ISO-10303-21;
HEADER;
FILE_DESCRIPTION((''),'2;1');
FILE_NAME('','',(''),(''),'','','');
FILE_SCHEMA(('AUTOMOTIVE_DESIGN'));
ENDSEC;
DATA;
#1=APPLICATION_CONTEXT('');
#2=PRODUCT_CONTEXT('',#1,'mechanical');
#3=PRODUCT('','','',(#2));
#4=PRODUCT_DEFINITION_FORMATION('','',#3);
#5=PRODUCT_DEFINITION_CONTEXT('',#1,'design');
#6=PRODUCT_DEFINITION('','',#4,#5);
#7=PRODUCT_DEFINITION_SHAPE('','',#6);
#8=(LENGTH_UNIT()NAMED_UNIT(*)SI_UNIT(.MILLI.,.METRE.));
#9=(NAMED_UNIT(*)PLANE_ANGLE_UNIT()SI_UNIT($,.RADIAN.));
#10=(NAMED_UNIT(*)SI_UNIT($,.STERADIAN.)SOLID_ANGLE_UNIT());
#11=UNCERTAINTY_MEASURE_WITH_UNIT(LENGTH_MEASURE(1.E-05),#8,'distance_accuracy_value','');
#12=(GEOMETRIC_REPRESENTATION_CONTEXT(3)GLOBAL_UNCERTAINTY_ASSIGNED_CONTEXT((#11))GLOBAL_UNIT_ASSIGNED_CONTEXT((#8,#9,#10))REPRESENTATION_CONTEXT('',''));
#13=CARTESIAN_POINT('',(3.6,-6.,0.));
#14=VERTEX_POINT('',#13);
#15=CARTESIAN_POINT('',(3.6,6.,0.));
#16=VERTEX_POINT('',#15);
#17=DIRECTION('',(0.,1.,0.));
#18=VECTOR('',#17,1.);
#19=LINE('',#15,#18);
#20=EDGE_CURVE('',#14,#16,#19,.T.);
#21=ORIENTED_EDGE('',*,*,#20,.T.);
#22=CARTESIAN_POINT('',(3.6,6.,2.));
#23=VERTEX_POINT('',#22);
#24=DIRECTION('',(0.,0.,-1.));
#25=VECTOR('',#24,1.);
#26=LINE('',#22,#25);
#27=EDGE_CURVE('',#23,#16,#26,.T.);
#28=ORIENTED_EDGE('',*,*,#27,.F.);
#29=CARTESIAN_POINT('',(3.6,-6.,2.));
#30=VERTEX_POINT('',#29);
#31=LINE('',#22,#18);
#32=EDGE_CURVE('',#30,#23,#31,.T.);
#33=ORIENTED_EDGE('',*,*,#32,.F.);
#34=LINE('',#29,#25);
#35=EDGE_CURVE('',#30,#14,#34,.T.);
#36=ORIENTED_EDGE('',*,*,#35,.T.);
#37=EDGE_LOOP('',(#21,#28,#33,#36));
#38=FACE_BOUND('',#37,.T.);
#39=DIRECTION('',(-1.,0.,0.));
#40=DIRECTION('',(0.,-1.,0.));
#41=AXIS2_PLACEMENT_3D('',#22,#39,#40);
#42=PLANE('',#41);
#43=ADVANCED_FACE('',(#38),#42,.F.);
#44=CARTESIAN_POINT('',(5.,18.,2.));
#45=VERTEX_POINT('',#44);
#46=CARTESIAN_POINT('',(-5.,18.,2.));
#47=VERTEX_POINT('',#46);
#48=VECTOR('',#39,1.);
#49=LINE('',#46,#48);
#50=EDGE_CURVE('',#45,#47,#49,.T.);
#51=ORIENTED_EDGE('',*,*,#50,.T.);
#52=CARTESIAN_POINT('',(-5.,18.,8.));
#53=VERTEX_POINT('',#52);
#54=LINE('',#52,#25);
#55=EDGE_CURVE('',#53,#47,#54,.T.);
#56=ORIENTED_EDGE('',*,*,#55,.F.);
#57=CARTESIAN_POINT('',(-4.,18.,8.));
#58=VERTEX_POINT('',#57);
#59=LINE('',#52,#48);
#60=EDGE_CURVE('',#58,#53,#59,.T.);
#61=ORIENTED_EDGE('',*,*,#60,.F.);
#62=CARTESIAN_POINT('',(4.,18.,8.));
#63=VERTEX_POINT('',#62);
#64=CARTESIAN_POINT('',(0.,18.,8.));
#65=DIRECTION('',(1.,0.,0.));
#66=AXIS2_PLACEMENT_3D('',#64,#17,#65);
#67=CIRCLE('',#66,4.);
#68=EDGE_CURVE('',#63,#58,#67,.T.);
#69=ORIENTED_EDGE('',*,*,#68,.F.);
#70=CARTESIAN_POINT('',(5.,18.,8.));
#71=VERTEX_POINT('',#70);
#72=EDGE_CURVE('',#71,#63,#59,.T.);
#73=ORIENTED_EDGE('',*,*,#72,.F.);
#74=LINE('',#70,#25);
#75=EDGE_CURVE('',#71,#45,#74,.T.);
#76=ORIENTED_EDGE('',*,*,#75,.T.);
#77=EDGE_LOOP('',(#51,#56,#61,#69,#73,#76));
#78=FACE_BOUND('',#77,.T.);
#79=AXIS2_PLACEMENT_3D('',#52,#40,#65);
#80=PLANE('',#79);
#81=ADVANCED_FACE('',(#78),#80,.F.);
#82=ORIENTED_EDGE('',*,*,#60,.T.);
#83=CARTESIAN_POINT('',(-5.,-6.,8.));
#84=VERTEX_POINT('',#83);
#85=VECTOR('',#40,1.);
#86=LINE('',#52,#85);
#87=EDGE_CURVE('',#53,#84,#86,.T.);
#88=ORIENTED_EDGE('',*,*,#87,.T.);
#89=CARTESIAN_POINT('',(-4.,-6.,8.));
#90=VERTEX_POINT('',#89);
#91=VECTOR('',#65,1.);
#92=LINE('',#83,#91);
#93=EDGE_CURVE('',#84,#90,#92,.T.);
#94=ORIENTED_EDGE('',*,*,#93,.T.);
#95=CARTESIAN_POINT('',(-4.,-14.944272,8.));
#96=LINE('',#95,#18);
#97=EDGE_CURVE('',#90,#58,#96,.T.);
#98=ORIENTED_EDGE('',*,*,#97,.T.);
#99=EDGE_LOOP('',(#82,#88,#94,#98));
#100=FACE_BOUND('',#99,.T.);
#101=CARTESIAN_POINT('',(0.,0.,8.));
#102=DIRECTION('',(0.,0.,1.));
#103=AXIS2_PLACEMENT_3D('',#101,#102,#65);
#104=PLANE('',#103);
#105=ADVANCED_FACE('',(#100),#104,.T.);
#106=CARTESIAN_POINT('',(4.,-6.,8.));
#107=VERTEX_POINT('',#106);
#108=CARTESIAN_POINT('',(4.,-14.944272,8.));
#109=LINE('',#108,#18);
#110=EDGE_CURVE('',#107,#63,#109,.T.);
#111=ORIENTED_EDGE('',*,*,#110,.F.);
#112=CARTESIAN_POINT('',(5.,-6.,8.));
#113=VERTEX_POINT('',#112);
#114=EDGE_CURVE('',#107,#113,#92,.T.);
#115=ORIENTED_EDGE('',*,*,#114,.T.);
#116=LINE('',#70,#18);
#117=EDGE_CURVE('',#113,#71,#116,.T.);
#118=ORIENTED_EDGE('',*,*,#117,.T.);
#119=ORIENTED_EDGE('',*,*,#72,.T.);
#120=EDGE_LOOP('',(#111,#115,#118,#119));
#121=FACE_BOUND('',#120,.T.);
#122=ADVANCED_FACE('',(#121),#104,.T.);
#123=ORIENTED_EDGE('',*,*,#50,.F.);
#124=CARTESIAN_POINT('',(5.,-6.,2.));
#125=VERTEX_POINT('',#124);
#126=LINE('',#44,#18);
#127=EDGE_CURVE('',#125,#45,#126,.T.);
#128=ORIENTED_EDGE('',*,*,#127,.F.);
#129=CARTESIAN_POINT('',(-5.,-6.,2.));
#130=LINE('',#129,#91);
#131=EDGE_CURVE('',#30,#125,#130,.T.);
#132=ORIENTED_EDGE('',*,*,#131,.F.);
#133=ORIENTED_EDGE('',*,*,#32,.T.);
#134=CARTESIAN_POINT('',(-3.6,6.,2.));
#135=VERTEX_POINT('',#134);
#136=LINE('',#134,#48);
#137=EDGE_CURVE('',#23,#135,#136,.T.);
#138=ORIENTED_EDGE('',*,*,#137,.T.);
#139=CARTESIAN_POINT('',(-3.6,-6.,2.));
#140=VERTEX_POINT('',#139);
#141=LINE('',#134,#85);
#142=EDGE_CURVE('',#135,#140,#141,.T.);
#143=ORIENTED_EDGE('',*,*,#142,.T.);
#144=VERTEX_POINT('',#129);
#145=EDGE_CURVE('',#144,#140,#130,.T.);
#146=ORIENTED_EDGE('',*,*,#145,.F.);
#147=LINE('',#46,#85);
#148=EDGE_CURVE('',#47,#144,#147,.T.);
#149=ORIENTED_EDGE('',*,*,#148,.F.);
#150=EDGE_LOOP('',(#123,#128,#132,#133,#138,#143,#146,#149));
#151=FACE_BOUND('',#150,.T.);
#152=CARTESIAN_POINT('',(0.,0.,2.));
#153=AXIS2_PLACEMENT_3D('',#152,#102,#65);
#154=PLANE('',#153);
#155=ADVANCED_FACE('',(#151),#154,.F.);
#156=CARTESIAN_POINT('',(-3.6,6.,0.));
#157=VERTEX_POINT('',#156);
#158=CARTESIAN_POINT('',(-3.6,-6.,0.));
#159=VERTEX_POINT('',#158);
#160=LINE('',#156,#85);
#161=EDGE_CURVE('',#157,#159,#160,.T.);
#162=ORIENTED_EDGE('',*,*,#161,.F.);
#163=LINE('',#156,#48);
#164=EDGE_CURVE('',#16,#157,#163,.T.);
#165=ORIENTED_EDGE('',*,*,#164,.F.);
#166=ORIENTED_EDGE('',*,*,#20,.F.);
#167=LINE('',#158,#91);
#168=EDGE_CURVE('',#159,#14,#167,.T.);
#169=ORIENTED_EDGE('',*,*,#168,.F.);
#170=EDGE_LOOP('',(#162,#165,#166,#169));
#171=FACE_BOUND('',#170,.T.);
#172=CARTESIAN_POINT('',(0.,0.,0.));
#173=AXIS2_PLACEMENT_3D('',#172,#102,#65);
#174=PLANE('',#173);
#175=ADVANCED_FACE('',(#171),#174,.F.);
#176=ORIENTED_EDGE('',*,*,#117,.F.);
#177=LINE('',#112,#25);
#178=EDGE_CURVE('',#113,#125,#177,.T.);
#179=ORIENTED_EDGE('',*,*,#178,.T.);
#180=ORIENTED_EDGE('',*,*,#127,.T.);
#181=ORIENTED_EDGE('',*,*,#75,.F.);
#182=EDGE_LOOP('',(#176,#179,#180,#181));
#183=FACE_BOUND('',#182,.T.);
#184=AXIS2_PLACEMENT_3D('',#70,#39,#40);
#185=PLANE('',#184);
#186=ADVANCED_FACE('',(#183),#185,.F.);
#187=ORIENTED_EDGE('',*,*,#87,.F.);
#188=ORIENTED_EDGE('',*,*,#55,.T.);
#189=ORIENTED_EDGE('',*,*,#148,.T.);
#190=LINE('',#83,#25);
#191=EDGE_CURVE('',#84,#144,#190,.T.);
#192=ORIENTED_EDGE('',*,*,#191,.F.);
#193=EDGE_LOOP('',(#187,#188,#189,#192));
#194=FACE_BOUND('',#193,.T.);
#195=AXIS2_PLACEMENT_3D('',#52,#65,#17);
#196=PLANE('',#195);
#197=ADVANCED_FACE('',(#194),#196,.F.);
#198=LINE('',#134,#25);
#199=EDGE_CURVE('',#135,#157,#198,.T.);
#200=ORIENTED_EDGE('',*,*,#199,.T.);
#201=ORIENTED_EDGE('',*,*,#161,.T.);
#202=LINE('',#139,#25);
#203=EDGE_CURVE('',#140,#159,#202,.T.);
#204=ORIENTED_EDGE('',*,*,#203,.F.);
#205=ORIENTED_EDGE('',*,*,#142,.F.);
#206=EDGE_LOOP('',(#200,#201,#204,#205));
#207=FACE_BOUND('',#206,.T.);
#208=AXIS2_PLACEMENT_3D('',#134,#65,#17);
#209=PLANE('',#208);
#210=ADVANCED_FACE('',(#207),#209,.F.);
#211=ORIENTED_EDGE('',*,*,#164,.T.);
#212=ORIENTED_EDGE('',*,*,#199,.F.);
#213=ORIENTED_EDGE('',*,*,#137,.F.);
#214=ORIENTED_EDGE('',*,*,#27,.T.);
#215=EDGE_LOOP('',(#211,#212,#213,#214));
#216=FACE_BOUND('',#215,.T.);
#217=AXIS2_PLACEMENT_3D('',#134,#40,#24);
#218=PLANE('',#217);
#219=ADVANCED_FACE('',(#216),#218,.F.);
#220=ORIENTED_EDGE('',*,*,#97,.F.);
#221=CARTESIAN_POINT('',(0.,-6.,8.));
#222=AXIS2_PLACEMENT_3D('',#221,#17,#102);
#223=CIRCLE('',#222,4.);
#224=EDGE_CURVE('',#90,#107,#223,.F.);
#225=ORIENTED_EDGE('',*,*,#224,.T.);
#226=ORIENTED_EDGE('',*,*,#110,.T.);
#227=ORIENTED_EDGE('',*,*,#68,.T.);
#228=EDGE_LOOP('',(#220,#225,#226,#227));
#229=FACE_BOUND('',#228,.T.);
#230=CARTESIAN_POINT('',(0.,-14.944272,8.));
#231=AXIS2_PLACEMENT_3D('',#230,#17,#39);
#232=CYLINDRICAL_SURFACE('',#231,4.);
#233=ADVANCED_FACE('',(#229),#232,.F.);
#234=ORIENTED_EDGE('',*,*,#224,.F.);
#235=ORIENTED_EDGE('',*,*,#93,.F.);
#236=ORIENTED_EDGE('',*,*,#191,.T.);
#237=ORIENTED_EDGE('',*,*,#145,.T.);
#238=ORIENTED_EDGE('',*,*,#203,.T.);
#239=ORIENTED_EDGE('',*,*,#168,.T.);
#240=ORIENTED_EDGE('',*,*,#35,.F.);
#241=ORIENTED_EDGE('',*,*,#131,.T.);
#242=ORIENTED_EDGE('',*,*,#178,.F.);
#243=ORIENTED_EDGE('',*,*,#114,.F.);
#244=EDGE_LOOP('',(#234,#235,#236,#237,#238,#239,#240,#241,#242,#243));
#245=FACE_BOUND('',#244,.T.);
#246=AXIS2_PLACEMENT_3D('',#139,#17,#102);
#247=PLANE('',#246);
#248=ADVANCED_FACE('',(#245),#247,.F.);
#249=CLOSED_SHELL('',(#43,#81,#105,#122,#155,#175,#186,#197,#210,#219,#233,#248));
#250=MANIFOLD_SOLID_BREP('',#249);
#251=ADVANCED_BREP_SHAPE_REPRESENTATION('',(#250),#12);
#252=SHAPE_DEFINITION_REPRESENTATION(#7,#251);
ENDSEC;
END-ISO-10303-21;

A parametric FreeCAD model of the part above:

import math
import FreeCAD as App
import Part
import Sketcher
from FreeCAD import Vector
Q = App.Units.Quantity

doc = App.newDocument("Part")
body = doc.addObject("PartDesign::Body", "Body")

sketch1 = doc.addObject("Sketcher::SketchObject", "Sketch")
body.addObject(sketch1)
sketch1.AttachmentSupport = (doc.XY_Plane, [""])
sketch1.MapMode = "FlatFace"
sketch1.addGeometry([
    Part.LineSegment(Vector(-4, 6, 0), Vector(-4, -6, 0)),
    Part.LineSegment(Vector(-4, -6, 0), Vector(4, -6, 0)),
    Part.LineSegment(Vector(4, -6, 0), Vector(4, 6, 0)),
    Part.LineSegment(Vector(4, 6, 0), Vector(-4, 6, 0)),
], False)
sketch1.addConstraint([
    Sketcher.Constraint("Coincident", 0, 2, 1, 1),
    Sketcher.Constraint("Coincident", 1, 2, 2, 1),
    Sketcher.Constraint("Coincident", 2, 2, 3, 1),
    Sketcher.Constraint("Coincident", 3, 2, 0, 1),
    Sketcher.Constraint("Vertical", 0),
    Sketcher.Constraint("Horizontal", 1),
    Sketcher.Constraint("Vertical", 2),
    Sketcher.Constraint("Horizontal", 3),
    Sketcher.Constraint("Symmetric", 0, 2, 2, 2, -1, 1),
    Sketcher.Constraint("DistanceY", 0, 2, 0, 1, Q("12 mm")),
    Sketcher.Constraint("DistanceX", 1, 1, 1, 2, Q("7.2 mm")),
])
pad1 = doc.addObject("PartDesign::Pad", "Pad")
body.addObject(pad1)
pad1.Profile = sketch1
pad1.Length = 2

sketch2 = doc.addObject("Sketcher::SketchObject", "Sketch001")
body.addObject(sketch2)
sketch2.AttachmentSupport = (doc.XY_Plane, [""])
sketch2.MapMode = "FlatFace"
sketch2.AttachmentOffset = App.Placement(Vector(0, 0, 2), App.Rotation())
sketch2.addGeometry([
    Part.LineSegment(Vector(-5, 18, 0), Vector(-5, -6, 0)),
    Part.LineSegment(Vector(-5, -6, 0), Vector(5, -6, 0)),
    Part.LineSegment(Vector(5, -6, 0), Vector(5, 18, 0)),
    Part.LineSegment(Vector(5, 18, 0), Vector(-5, 18, 0)),
], False)
sketch2.addConstraint([
    Sketcher.Constraint("Coincident", 0, 2, 1, 1),
    Sketcher.Constraint("Coincident", 1, 2, 2, 1),
    Sketcher.Constraint("Coincident", 2, 2, 3, 1),
    Sketcher.Constraint("Coincident", 3, 2, 0, 1),
    Sketcher.Constraint("Vertical", 0),
    Sketcher.Constraint("Horizontal", 1),
    Sketcher.Constraint("Vertical", 2),
    Sketcher.Constraint("Horizontal", 3),
    Sketcher.Constraint("DistanceX", 1, 1, 1, 2, Q("10 mm")),
    Sketcher.Constraint("DistanceY", 0, 2, 0, 1, Q("24 mm")),
    Sketcher.Constraint("DistanceX", 0, 2, -1, 1, Q("5 mm")),
    Sketcher.Constraint("DistanceY", 0, 2, -1, 1, Q("6 mm")),
])
pad2 = doc.addObject("PartDesign::Pad", "Pad001")
body.addObject(pad2)
pad2.Profile = sketch2
pad2.Length = 6

sketch3 = doc.addObject("Sketcher::SketchObject", "Sketch002")
body.addObject(sketch3)
sketch3.AttachmentSupport = (doc.XZ_Plane, [""])
sketch3.MapMode = "FlatFace"
sketch3.AttachmentOffset = App.Placement(Vector(0, 0, -18), App.Rotation())
sketch3.addGeometry([
    Part.LineSegment(Vector(-4, 8, 0), Vector(4, 8, 0)),
    Part.ArcOfCircle(Part.Circle(Vector(0, 8, 0), Vector(0, 0, 1), 4), math.radians(180), math.radians(360)),
], False)
sketch3.addConstraint([
    Sketcher.Constraint("Coincident", 0, 1, 1, 1),
    Sketcher.Constraint("Coincident", 1, 2, 0, 2),
    Sketcher.Constraint("Horizontal", 0),
    Sketcher.Constraint("PointOnObject", 1, 3, -2),
    Sketcher.Constraint("Horizontal", 1, 3, 0, 1),
    Sketcher.Constraint("Radius", 1, Q("4 mm")),
    Sketcher.Constraint("DistanceY", -1, 1, 1, 3, Q("8 mm")),
])
pocket1 = doc.addObject("PartDesign::Pocket", "Pocket")
body.addObject(pocket1)
pocket1.Profile = sketch3
pocket1.Length = 24
pocket1.Reversed = True

doc.recompute()
